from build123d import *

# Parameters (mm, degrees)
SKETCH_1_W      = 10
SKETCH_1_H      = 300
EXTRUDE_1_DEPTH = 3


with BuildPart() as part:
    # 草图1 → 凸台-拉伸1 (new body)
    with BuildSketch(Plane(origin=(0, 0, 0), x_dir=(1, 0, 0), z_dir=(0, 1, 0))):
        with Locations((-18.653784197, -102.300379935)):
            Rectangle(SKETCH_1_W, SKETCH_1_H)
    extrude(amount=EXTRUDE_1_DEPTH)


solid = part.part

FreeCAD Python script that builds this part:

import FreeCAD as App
import Part
import Sketcher
Q = App.Units.Quantity


def add_polygon(sketch, points):
    """Adds a closed chain of lines whose ends are joined by coincident constraints."""
    first, n = sketch.GeometryCount, len(points)
    for a, b in zip(points, points[1:] + points[:1]):
        sketch.addGeometry(Part.LineSegment(App.Vector(*a, 0), App.Vector(*b, 0)), False)
    for i in range(n):
        sketch.addConstraint(Sketcher.Constraint("Coincident", first + i, 2, first + (i + 1) % n, 1))

doc = App.newDocument("Part")
body = doc.addObject("PartDesign::Body", "Body")

sketch1 = doc.addObject("Sketcher::SketchObject", "Sketch")
body.addObject(sketch1)
sketch1.AttachmentSupport = (doc.XZ_Plane, [""])
sketch1.MapMode = "FlatFace"
add_polygon(sketch1, [(-24, -48), (-24, 252), (-14, 252), (-14, -48)])
sketch1.addConstraint([
    Sketcher.Constraint("Vertical", 0),
    Sketcher.Constraint("Horizontal", 1),
    Sketcher.Constraint("Vertical", 2),
    Sketcher.Constraint("Horizontal", 3),
    Sketcher.Constraint("DistanceX", 1, 1, 1, 2, Q("10 mm")),
    Sketcher.Constraint("DistanceY", 0, 1, 0, 2, Q("300 mm")),
    Sketcher.Constraint("DistanceY", -1, 1, 0, 2, Q("252.30038 mm")),
    Sketcher.Constraint("DistanceX", 0, 2, -1, 1, Q("23.653784 mm")),
])
pad1 = doc.addObject("PartDesign::Pad", "Pad")
body.addObject(pad1)
pad1.Profile = sketch1
pad1.Length = 3
pad1.Reversed = True

doc.recompute()
